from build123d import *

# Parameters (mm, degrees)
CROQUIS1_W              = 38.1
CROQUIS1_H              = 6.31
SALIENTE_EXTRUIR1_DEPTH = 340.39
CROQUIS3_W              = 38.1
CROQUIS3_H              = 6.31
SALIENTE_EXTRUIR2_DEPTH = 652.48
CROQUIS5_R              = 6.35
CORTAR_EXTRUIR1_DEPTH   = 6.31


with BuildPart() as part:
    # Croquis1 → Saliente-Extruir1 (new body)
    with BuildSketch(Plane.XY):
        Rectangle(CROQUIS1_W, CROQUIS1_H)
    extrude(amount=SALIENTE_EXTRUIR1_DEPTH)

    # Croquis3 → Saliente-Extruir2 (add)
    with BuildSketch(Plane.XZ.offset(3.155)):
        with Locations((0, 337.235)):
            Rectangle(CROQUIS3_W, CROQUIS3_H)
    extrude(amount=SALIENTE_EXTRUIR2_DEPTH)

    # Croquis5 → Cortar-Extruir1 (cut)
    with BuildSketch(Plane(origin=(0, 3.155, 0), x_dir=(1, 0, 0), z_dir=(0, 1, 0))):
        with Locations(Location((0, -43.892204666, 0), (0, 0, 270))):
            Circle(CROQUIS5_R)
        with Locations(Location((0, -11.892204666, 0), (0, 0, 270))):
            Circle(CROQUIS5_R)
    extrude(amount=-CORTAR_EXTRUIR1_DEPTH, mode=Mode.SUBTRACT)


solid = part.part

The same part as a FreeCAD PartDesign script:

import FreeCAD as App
import Part
import Sketcher

V = App.Vector
Q = App.Units.Quantity

doc = App.newDocument("Part")
params = doc.addObject("Spreadsheet::Sheet", "Params")
for row, (alias, value) in enumerate([
    ("sketch1_width", "1.5 in"),
    ("pad1_length", "340.39 mm"),
    ("sketch2_width", "1.5 in"),
    ("pad2_length", "652.48 mm"),
    ("sketch3_diameter", "0.5 in"),
    ("pocket1_length", "6.31 mm"),
], start=1):
    params.set(f"A{row}", alias)
    params.set(f"B{row}", "=" + value)
    params.setAlias(f"B{row}", alias)

body = doc.addObject("PartDesign::Body", "Body")

sketch1 = body.newObject("Sketcher::SketchObject", "Sketch")
sketch1.AttachmentSupport = (doc.getObject("XY_Plane"), [""])
sketch1.MapMode = "FlatFace"
sketch1.addGeometry(Part.LineSegment(V(-19.05, 3.155, 0), V(-19.05, -3.155, 0)), False)
sketch1.addGeometry(Part.LineSegment(V(-19.05, -3.155, 0), V(19.05, -3.155, 0)), False)
sketch1.addGeometry(Part.LineSegment(V(19.05, -3.155, 0), V(19.05, 3.155, 0)), False)
sketch1.addGeometry(Part.LineSegment(V(19.05, 3.155, 0), V(-19.05, 3.155, 0)), False)
sketch1.addConstraint(Sketcher.Constraint("Coincident", 0, 2, 1, 1))
sketch1.addConstraint(Sketcher.Constraint("Coincident", 1, 2, 2, 1))
sketch1.addConstraint(Sketcher.Constraint("Coincident", 2, 2, 3, 1))
sketch1.addConstraint(Sketcher.Constraint("Coincident", 3, 2, 0, 1))
sketch1.addConstraint(Sketcher.Constraint("Vertical", 0))
sketch1.addConstraint(Sketcher.Constraint("Horizontal", 1))
sketch1.addConstraint(Sketcher.Constraint("Vertical", 2))
sketch1.addConstraint(Sketcher.Constraint("Horizontal", 3))
sketch1.addConstraint(Sketcher.Constraint("Symmetric", 0, 2, 2, 2, -1, 1))
sketch1.addConstraint(Sketcher.Constraint("DistanceX", 1, 1, 1, 2, Q("1.5 in")))
sketch1.addConstraint(Sketcher.Constraint("DistanceY", 0, 2, 0, 1, 6.31))
sketch1.setExpression("Constraints[9]", "Params.sketch1_width")
pad1 = body.newObject("PartDesign::Pad", "Pad")
pad1.Profile = sketch1
pad1.setExpression("Length", "Params.pad1_length")

sketch2 = body.newObject("Sketcher::SketchObject", "Sketch001")
sketch2.AttachmentSupport = (doc.getObject("XZ_Plane"), [""])
sketch2.MapMode = "FlatFace"
sketch2.AttachmentOffset = App.Placement(V(0, 0, 3.155), App.Rotation())
sketch2.addGeometry(Part.LineSegment(V(-19.05, 340.39, 0), V(-19.05, 334.08, 0)), False)
sketch2.addGeometry(Part.LineSegment(V(-19.05, 334.08, 0), V(19.05, 334.08, 0)), False)
sketch2.addGeometry(Part.LineSegment(V(19.05, 334.08, 0), V(19.05, 340.39, 0)), False)
sketch2.addGeometry(Part.LineSegment(V(19.05, 340.39, 0), V(-19.05, 340.39, 0)), False)
sketch2.addConstraint(Sketcher.Constraint("Coincident", 0, 2, 1, 1))
sketch2.addConstraint(Sketcher.Constraint("Coincident", 1, 2, 2, 1))
sketch2.addConstraint(Sketcher.Constraint("Coincident", 2, 2, 3, 1))
sketch2.addConstraint(Sketcher.Constraint("Coincident", 3, 2, 0, 1))
sketch2.addConstraint(Sketcher.Constraint("Vertical", 0))
sketch2.addConstraint(Sketcher.Constraint("Horizontal", 1))
sketch2.addConstraint(Sketcher.Constraint("Vertical", 2))
sketch2.addConstraint(Sketcher.Constraint("Horizontal", 3))
sketch2.addConstraint(Sketcher.Constraint("DistanceX", 1, 1, 1, 2, Q("1.5 in")))
sketch2.addConstraint(Sketcher.Constraint("DistanceX", 0, 2, -1, 1, Q("0.75 in")))
sketch2.addConstraint(Sketcher.Constraint("DistanceY", 0, 2, 0, 1, 6.31))
sketch2.addConstraint(Sketcher.Constraint("DistanceY", -1, 1, 0, 2, 334.08))
sketch2.setExpression("Constraints[8]", "Params.sketch2_width")
pad2 = body.newObject("PartDesign::Pad", "Pad001")
pad2.Profile = sketch2
pad2.setExpression("Length", "Params.pad2_length")

sketch3 = body.newObject("Sketcher::SketchObject", "Sketch002")
sketch3.AttachmentSupport = (doc.getObject("XZ_Plane"), [""])
sketch3.MapMode = "FlatFace"
sketch3.AttachmentOffset = App.Placement(V(0, 0, -3.155), App.Rotation())
sketch3.addGeometry(Part.Circle(V(0, 43.892205, 0), V(0, 0, 1), 6.35), False)
sketch3.addGeometry(Part.Circle(V(0, 11.892205, 0), V(0, 0, 1), 6.35), False)
sketch3.addConstraint(Sketcher.Constraint("Equal", 0, 1))
sketch3.addConstraint(Sketcher.Constraint("PointOnObject", 0, 3, -2))
sketch3.addConstraint(Sketcher.Constraint("PointOnObject", 1, 3, -2))
sketch3.addConstraint(Sketcher.Constraint("Diameter", 0, Q("0.5 in")))
sketch3.addConstraint(Sketcher.Constraint("DistanceY", 1, 3, 0, 3, 32.0))
sketch3.addConstraint(Sketcher.Constraint("DistanceY", -1, 1, 0, 3, 43.892205))
sketch3.setExpression("Constraints[3]", "Params.sketch3_diameter")
pocket1 = body.newObject("PartDesign::Pocket", "Pocket")
pocket1.Profile = sketch3
pocket1.setExpression("Length", "Params.pocket1_length")
pocket1.Reversed = True

doc.recompute()
